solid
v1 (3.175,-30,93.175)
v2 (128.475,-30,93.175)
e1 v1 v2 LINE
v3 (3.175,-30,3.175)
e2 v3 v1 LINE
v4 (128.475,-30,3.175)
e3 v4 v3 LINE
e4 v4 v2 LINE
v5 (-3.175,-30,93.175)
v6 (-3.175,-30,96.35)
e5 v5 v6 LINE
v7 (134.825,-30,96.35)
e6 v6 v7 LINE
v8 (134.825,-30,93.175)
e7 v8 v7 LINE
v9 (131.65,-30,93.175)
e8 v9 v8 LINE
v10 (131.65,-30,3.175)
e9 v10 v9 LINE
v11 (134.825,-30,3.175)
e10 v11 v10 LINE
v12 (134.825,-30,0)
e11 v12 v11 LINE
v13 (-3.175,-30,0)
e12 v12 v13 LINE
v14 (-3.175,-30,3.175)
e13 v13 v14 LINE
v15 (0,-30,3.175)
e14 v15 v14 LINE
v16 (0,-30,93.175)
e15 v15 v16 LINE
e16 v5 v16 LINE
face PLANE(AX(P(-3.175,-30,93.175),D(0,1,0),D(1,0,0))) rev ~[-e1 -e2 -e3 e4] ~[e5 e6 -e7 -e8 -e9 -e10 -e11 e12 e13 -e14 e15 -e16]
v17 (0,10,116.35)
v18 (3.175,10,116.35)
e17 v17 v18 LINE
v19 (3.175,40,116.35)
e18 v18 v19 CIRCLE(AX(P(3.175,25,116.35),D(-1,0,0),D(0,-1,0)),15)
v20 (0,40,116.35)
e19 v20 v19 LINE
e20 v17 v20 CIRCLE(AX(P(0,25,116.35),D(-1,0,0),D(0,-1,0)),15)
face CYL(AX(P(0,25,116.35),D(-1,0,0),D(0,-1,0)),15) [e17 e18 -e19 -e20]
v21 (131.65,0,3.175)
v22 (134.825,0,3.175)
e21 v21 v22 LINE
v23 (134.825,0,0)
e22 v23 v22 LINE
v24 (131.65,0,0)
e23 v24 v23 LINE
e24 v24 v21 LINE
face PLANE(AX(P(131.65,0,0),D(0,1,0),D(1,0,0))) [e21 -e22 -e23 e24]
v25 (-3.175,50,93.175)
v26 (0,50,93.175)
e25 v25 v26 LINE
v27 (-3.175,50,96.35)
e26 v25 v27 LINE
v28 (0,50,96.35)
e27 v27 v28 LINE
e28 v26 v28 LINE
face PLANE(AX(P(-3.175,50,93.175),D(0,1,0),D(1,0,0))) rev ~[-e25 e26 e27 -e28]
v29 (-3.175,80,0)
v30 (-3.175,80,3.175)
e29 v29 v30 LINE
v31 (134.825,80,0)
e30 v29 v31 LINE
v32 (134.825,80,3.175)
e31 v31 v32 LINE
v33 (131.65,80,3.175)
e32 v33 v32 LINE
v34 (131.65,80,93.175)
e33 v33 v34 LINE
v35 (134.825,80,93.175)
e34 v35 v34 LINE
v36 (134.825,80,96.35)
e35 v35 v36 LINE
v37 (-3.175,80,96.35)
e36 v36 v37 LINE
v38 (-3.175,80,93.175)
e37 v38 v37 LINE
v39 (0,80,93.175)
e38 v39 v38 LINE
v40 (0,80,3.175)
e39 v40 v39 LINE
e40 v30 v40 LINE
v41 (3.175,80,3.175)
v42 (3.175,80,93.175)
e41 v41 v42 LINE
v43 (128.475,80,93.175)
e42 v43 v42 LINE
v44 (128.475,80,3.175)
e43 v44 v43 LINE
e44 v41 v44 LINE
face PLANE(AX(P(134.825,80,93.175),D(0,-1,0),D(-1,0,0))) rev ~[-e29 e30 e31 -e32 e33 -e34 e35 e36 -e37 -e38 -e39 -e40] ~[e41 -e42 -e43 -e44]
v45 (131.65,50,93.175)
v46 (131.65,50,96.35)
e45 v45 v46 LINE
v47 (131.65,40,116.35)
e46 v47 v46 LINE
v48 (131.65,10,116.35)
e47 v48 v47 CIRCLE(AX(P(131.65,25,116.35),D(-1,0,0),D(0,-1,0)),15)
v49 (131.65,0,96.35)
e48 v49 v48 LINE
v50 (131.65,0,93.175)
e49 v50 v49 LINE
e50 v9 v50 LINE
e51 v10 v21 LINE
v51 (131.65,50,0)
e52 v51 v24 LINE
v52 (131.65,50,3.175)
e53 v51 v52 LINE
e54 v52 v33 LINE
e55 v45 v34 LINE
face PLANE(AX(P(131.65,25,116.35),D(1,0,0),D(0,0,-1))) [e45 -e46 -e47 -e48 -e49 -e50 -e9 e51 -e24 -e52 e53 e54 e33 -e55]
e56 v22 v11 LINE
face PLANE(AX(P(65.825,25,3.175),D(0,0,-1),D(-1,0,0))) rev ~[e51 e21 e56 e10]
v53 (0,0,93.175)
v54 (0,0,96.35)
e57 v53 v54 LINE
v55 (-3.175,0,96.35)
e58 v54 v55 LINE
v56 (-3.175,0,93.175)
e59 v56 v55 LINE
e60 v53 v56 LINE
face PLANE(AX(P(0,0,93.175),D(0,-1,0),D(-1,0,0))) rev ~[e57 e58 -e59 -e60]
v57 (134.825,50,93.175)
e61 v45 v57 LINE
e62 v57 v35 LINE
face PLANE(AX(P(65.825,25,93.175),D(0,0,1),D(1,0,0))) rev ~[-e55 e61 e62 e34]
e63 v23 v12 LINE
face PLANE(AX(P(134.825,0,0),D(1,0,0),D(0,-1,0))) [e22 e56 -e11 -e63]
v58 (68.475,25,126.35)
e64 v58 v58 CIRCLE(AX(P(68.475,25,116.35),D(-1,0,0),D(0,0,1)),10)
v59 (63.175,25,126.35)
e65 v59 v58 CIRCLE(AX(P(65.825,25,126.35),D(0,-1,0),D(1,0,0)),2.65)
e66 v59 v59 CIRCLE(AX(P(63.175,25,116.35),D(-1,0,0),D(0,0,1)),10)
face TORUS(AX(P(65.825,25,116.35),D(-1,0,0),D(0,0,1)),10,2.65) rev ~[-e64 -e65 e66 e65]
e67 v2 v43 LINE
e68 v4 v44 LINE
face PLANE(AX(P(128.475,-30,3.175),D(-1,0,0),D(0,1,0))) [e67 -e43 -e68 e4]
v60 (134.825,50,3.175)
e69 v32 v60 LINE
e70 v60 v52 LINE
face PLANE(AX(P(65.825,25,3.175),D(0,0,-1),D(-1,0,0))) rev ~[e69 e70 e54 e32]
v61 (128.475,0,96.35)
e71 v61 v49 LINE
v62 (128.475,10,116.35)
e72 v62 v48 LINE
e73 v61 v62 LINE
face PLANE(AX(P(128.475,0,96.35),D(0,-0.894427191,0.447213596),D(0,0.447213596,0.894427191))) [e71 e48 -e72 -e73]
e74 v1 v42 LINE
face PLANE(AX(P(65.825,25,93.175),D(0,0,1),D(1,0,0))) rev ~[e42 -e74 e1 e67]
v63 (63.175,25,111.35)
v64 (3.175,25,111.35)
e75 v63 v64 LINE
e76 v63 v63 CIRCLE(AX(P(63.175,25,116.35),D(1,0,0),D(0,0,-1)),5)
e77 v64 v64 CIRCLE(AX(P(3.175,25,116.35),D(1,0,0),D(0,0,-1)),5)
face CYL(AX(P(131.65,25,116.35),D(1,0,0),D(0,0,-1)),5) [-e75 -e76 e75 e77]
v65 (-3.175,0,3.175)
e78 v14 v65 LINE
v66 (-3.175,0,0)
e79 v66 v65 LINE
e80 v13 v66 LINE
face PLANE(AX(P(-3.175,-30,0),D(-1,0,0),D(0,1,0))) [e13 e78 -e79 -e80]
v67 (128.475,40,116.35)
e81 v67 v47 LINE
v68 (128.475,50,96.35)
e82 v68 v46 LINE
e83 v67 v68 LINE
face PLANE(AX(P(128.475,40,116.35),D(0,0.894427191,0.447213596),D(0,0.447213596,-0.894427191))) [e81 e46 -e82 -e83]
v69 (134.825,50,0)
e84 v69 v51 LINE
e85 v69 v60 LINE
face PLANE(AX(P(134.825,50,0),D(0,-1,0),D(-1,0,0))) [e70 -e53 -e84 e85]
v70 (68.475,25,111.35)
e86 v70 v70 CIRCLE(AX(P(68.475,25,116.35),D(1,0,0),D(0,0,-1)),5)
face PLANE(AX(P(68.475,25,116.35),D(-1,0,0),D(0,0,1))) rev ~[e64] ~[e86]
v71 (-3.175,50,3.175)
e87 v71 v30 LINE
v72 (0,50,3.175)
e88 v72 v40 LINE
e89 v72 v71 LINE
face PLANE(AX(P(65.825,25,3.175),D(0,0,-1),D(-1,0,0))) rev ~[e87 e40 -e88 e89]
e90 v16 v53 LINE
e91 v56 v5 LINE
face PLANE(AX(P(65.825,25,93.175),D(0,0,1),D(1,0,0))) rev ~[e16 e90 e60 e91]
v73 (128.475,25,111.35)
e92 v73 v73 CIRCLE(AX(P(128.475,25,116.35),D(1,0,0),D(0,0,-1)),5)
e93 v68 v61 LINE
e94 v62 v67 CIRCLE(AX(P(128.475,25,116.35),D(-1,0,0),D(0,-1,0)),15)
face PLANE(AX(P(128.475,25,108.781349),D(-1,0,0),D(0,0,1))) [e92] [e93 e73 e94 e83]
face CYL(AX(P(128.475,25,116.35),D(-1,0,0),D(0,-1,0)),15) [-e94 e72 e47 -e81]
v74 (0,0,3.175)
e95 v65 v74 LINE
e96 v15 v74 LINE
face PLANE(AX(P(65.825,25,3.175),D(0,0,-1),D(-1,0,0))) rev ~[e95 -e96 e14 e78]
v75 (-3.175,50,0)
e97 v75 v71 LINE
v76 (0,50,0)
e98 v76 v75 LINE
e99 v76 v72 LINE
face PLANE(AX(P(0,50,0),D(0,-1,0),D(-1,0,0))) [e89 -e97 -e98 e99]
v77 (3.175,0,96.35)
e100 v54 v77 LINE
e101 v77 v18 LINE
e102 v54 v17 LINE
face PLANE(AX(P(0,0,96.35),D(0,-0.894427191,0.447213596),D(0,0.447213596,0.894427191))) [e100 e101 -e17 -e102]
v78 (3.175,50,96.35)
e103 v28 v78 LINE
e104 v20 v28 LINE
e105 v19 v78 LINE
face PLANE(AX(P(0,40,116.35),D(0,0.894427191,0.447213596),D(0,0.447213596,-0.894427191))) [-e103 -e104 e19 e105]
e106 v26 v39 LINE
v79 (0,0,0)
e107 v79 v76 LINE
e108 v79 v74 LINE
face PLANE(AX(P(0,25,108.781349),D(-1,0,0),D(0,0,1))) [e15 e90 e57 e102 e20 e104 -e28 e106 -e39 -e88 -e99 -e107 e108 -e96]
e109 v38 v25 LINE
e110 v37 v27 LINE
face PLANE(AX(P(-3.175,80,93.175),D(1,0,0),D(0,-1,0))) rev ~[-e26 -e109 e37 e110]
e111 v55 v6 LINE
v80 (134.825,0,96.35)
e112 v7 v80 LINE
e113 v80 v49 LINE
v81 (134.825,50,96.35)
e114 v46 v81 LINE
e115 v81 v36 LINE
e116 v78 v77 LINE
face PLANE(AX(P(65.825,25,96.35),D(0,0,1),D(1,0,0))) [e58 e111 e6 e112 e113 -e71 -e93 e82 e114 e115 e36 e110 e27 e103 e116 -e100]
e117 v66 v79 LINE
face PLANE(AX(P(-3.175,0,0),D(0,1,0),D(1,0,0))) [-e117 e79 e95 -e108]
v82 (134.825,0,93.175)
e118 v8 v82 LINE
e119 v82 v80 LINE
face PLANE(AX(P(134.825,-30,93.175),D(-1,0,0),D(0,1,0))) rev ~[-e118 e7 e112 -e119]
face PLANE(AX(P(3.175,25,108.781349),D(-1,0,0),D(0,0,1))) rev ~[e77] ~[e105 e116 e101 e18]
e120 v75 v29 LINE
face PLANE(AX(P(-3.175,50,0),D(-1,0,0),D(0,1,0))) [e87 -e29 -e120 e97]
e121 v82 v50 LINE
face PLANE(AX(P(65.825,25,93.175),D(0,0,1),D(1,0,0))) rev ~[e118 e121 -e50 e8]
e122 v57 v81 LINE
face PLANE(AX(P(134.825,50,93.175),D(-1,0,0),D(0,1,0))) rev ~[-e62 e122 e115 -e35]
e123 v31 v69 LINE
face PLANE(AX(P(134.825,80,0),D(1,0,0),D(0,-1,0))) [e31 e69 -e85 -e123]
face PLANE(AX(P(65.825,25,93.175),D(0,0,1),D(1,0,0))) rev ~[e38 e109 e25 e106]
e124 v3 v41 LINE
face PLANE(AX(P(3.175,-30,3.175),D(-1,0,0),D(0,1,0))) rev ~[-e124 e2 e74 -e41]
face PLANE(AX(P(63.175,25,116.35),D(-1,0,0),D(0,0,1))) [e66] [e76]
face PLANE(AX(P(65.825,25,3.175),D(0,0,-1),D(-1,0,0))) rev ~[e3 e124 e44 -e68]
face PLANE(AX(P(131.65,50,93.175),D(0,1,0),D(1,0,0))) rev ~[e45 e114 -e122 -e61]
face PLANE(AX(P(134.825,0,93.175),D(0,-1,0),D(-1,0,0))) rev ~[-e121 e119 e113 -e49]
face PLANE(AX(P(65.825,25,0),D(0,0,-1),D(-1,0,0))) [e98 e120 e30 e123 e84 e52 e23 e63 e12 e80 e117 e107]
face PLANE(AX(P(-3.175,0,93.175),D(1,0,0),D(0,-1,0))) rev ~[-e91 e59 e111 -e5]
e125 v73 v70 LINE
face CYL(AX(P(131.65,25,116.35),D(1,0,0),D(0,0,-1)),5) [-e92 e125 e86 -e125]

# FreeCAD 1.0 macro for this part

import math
import FreeCAD as App
import Part
import Sketcher
from FreeCAD import Vector
Q = App.Units.Quantity


def add_polygon(sketch, points):
    """Adds a closed chain of lines whose ends are joined by coincident constraints."""
    first, n = sketch.GeometryCount, len(points)
    for a, b in zip(points, points[1:] + points[:1]):
        sketch.addGeometry(Part.LineSegment(App.Vector(*a, 0), App.Vector(*b, 0)), False)
    for i in range(n):
        sketch.addConstraint(Sketcher.Constraint("Coincident", first + i, 2, first + (i + 1) % n, 1))

doc = App.newDocument("Part")
body = doc.addObject("PartDesign::Body", "Body")

# Sketch on XY plane
sketch1 = body.newObject("Sketcher::SketchObject", "Sketch")
sketch1.AttachmentSupport = (doc.getObject("XY_Plane"), [""])
sketch1.MapMode = "FlatFace"
add_polygon(sketch1, [(-3.2, 50), (0, 50), (0, 0), (-3.2, 0), (-3.2, -30), (134.8, -30), (134.8, 0), (131.7, 0), (131.7, 50), (134.8, 50), (134.8, 80), (-3.2, 80)])  # lines 0-11
sketch1.addConstraint(Sketcher.Constraint("Horizontal", 0))
sketch1.addConstraint(Sketcher.Constraint("Vertical", 1))
sketch1.addConstraint(Sketcher.Constraint("Horizontal", 2))
sketch1.addConstraint(Sketcher.Constraint("Vertical", 3))
sketch1.addConstraint(Sketcher.Constraint("Horizontal", 4))
sketch1.addConstraint(Sketcher.Constraint("Vertical", 5))
sketch1.addConstraint(Sketcher.Constraint("Horizontal", 6))
sketch1.addConstraint(Sketcher.Constraint("Vertical", 7))
sketch1.addConstraint(Sketcher.Constraint("Horizontal", 8))
sketch1.addConstraint(Sketcher.Constraint("Vertical", 9))
sketch1.addConstraint(Sketcher.Constraint("Horizontal", 10))
sketch1.addConstraint(Sketcher.Constraint("Vertical", 11))
sketch1.addConstraint(Sketcher.Constraint("Coincident", 1, 2, -1, 1))
sketch1.addConstraint(Sketcher.Constraint("PointOnObject", 5, 2, -1))
sketch1.addConstraint(Sketcher.Constraint("Horizontal", 0, 2, 7, 2))
sketch1.addConstraint(Sketcher.Constraint("Vertical", 5, 2, 8, 2))
sketch1.addConstraint(Sketcher.Constraint("Vertical", 3, 2, 10, 2))
sketch1.addConstraint(Sketcher.Constraint("Equal", 2, 6))
sketch1.addConstraint(Sketcher.Constraint("Equal", 5, 9))
sketch1.addConstraint(Sketcher.Constraint("DistanceX", 4, 1, 4, 2, Q("138 mm")))
sketch1.addConstraint(Sketcher.Constraint("DistanceY", 1, 2, 1, 1, Q("50 mm")))
sketch1.addConstraint(Sketcher.Constraint("DistanceY", 3, 2, 3, 1, Q("30 mm")))
sketch1.addConstraint(Sketcher.Constraint("DistanceX", 0, 1, 0, 2, Q("3.175 mm")))
pad1 = body.newObject("PartDesign::Pad", "Pad")
pad1.Profile = sketch1
pad1.Length = 3.175

# Sketch on XY plane
sketch2 = body.newObject("Sketcher::SketchObject", "Sketch001")
sketch2.AttachmentSupport = (doc.getObject("XY_Plane"), [""])
sketch2.MapMode = "FlatFace"
sketch2.AttachmentOffset = App.Placement(Vector(0, 0, 3.175), App.Rotation())
add_polygon(sketch2, [(0, 80), (0, -30), (3.2, -30), (3.2, 80)])  # lines 0-3
add_polygon(sketch2, [(128.5, 80), (128.5, -30), (131.7, -30), (131.7, 80)])  # lines 4-7
sketch2.addConstraint(Sketcher.Constraint("Vertical", 0))
sketch2.addConstraint(Sketcher.Constraint("Horizontal", 1))
sketch2.addConstraint(Sketcher.Constraint("Vertical", 2))
sketch2.addConstraint(Sketcher.Constraint("Horizontal", 3))
sketch2.addConstraint(Sketcher.Constraint("Vertical", 4))
sketch2.addConstraint(Sketcher.Constraint("Horizontal", 5))
sketch2.addConstraint(Sketcher.Constraint("Vertical", 6))
sketch2.addConstraint(Sketcher.Constraint("Horizontal", 7))
sketch2.addConstraint(Sketcher.Constraint("PointOnObject", 0, 2, -2))
sketch2.addConstraint(Sketcher.Constraint("Horizontal", 1, 2, 4, 2))
sketch2.addConstraint(Sketcher.Constraint("Horizontal", 3, 2, 6, 2))
sketch2.addConstraint(Sketcher.Constraint("Equal", 3, 5))
sketch2.addConstraint(Sketcher.Constraint("DistanceY", 0, 2, 0, 1, Q("110 mm")))
sketch2.addConstraint(Sketcher.Constraint("DistanceY", 0, 2, -1, 1, Q("30 mm")))
sketch2.addConstraint(Sketcher.Constraint("DistanceX", 1, 2, 4, 2, Q("125.3 mm")))
sketch2.addConstraint(Sketcher.Constraint("DistanceX", 1, 1, 1, 2, Q("3.175 mm")))
pad2 = body.newObject("PartDesign::Pad", "Pad001")
pad2.Profile = sketch2
pad2.Length = 90

# Sketch on XY plane
sketch3 = body.newObject("Sketcher::SketchObject", "Sketch002")
sketch3.AttachmentSupport = (doc.getObject("XY_Plane"), [""])
sketch3.MapMode = "FlatFace"
sketch3.AttachmentOffset = App.Placement(Vector(0, 0, 93.175), App.Rotation())
add_polygon(sketch3, [(131.7, 50), (134.8, 50), (134.8, 80), (-3.2, 80), (-3.2, 50), (0, 50), (0, 0), (-3.2, 0), (-3.2, -30), (134.8, -30), (134.8, 0), (131.7, 0)])  # lines 0-11
sketch3.addConstraint(Sketcher.Constraint("Horizontal", 0))
sketch3.addConstraint(Sketcher.Constraint("Vertical", 1))
sketch3.addConstraint(Sketcher.Constraint("Horizontal", 2))
sketch3.addConstraint(Sketcher.Constraint("Vertical", 3))
sketch3.addConstraint(Sketcher.Constraint("Horizontal", 4))
sketch3.addConstraint(Sketcher.Constraint("Vertical", 5))
sketch3.addConstraint(Sketcher.Constraint("Horizontal", 6))
sketch3.addConstraint(Sketcher.Constraint("Vertical", 7))
sketch3.addConstraint(Sketcher.Constraint("Horizontal", 8))
sketch3.addConstraint(Sketcher.Constraint("Vertical", 9))
sketch3.addConstraint(Sketcher.Constraint("Horizontal", 10))
sketch3.addConstraint(Sketcher.Constraint("Vertical", 11))
sketch3.addConstraint(Sketcher.Constraint("Coincident", 5, 2, -1, 1))
sketch3.addConstraint(Sketcher.Constraint("PointOnObject", 9, 2, -1))
sketch3.addConstraint(Sketcher.Constraint("Horizontal", 0, 2, 3, 2))
sketch3.addConstraint(Sketcher.Constraint("Vertical", 3, 2, 6, 2))
sketch3.addConstraint(Sketcher.Constraint("Vertical", 1, 2, 8, 2))
sketch3.addConstraint(Sketcher.Constraint("Equal", 0, 4))
sketch3.addConstraint(Sketcher.Constraint("Equal", 3, 7))
sketch3.addConstraint(Sketcher.Constraint("DistanceX", 2, 2, 2, 1, Q("138 mm")))
sketch3.addConstraint(Sketcher.Constraint("DistanceY", 1, 1, 1, 2, Q("30 mm")))
sketch3.addConstraint(Sketcher.Constraint("DistanceY", 5, 2, 5, 1, Q("50 mm")))
sketch3.addConstraint(Sketcher.Constraint("DistanceX", 0, 1, 0, 2, Q("3.175 mm")))
pad3 = body.newObject("PartDesign::Pad", "Pad002")
pad3.Profile = sketch3
pad3.Length = 3.175

# Sketch on YZ plane
sketch4 = body.newObject("Sketcher::SketchObject", "Sketch003")
sketch4.AttachmentSupport = (doc.getObject("YZ_Plane"), [""])
sketch4.MapMode = "FlatFace"
sketch4.addGeometry(Part.LineSegment(Vector(50, 96, 0), Vector(0, 96, 0)), False)
sketch4.addGeometry(Part.LineSegment(Vector(0, 96, 0), Vector(10, 116, 0)), False)
sketch4.addGeometry(Part.ArcOfCircle(Part.Circle(Vector(25, 116, 0), Vector(0, 0, 1), 15), math.radians(0), math.radians(180)), False)
sketch4.addGeometry(Part.LineSegment(Vector(40, 116, 0), Vector(50, 96, 0)), False)
sketch4.addConstraint(Sketcher.Constraint("Coincident", 0, 2, 1, 1))
sketch4.addConstraint(Sketcher.Constraint("Coincident", 1, 2, 2, 2))
sketch4.addConstraint(Sketcher.Constraint("Coincident", 2, 1, 3, 1))
sketch4.addConstraint(Sketcher.Constraint("Coincident", 3, 2, 0, 1))
sketch4.addConstraint(Sketcher.Constraint("Horizontal", 0))
sketch4.addConstraint(Sketcher.Constraint("PointOnObject", 0, 2, -2))
sketch4.addConstraint(Sketcher.Constraint("Horizontal", 2, 3, 1, 2))
sketch4.addConstraint(Sketcher.Constraint("Horizontal", 1, 2, 2, 1))
sketch4.addConstraint(Sketcher.Constraint("Equal", 1, 3))
sketch4.addConstraint(Sketcher.Constraint("Radius", 2, Q("15 mm")))
sketch4.addConstraint(Sketcher.Constraint("DistanceX", 0, 2, 0, 1, Q("50 mm")))
sketch4.addConstraint(Sketcher.Constraint("DistanceY", 0, 2, 2, 3, Q("20 mm")))
sketch4.addConstraint(Sketcher.Constraint("DistanceY", -1, 1, 2, 3, Q("116.35 mm")))
pad4 = body.newObject("PartDesign::Pad", "Pad003")
pad4.Profile = sketch4
pad4.Length = 3.175

# Sketch on YZ plane
sketch5 = body.newObject("Sketcher::SketchObject", "Sketch004")
sketch5.AttachmentSupport = (doc.getObject("YZ_Plane"), [""])
sketch5.MapMode = "FlatFace"
sketch5.AttachmentOffset = App.Placement(Vector(0, 0, 128.475), App.Rotation())
sketch5.addGeometry(Part.LineSegment(Vector(10, 116, 0), Vector(0, 96, 0)), False)
sketch5.addGeometry(Part.LineSegment(Vector(0, 96, 0), Vector(50, 96, 0)), False)
sketch5.addGeometry(Part.LineSegment(Vector(50, 96, 0), Vector(40, 116, 0)), False)
sketch5.addGeometry(Part.ArcOfCircle(Part.Circle(Vector(25, 116, 0), Vector(0, 0, 1), 15), math.radians(0), math.radians(180)), False)
sketch5.addConstraint(Sketcher.Constraint("Coincident", 0, 2, 1, 1))
sketch5.addConstraint(Sketcher.Constraint("Coincident", 1, 2, 2, 1))
sketch5.addConstraint(Sketcher.Constraint("Coincident", 2, 2, 3, 1))
sketch5.addConstraint(Sketcher.Constraint("Coincident", 3, 2, 0, 1))
sketch5.addConstraint(Sketcher.Constraint("Horizontal", 1))
sketch5.addConstraint(Sketcher.Constraint("PointOnObject", 0, 2, -2))
sketch5.addConstraint(Sketcher.Constraint("Horizontal", 3, 3, 2, 2))
sketch5.addConstraint(Sketcher.Constraint("Horizontal", 2, 2, 3, 2))
sketch5.addConstraint(Sketcher.Constraint("Equal", 0, 2))
sketch5.addConstraint(Sketcher.Constraint("Radius", 3, Q("15 mm")))
sketch5.addConstraint(Sketcher.Constraint("DistanceX", 1, 1, 1, 2, Q("50 mm")))
sketch5.addConstraint(Sketcher.Constraint("DistanceY", 0, 2, 3, 3, Q("20 mm")))
sketch5.addConstraint(Sketcher.Constraint("DistanceY", -1, 1, 3, 3, Q("116.35 mm")))
pad5 = body.newObject("PartDesign::Pad", "Pad004")
pad5.Profile = sketch5
pad5.Length = 3.175

# Sketch on YZ plane
sketch6 = body.newObject("Sketcher::SketchObject", "Sketch005")
sketch6.AttachmentSupport = (doc.getObject("YZ_Plane"), [""])
sketch6.MapMode = "FlatFace"
sketch6.AttachmentOffset = App.Placement(Vector(0, 0, 131.65), App.Rotation())
sketch6.addGeometry(Part.Circle(Vector(25, 116, 0), Vector(0, 0, 1), 5), False)
sketch6.addConstraint(Sketcher.Constraint("Diameter", 0, Q("10 mm")))
sketch6.addConstraint(Sketcher.Constraint("DistanceX", -1, 1, 0, 3, Q("25 mm")))
sketch6.addConstraint(Sketcher.Constraint("DistanceY", -1, 1, 0, 3, Q("116.35 mm")))
pad6 = body.newObject("PartDesign::Pad", "Pad005")
pad6.Profile = sketch6
pad6.Length = 128.475
pad6.Reversed = True

# Sketch on YZ plane
sketch7 = body.newObject("Sketcher::SketchObject", "Sketch006")
sketch7.AttachmentSupport = (doc.getObject("YZ_Plane"), [""])
sketch7.MapMode = "FlatFace"
sketch7.AttachmentOffset = App.Placement(Vector(0, 0, 68.475), App.Rotation())
sketch7.addGeometry(Part.Circle(Vector(25, 116, 0), Vector(0, 0, 1), 10), False)
sketch7.addConstraint(Sketcher.Constraint("Diameter", 0, Q("20 mm")))
sketch7.addConstraint(Sketcher.Constraint("DistanceX", -1, 1, 0, 3, Q("25 mm")))
sketch7.addConstraint(Sketcher.Constraint("DistanceY", -1, 1, 0, 3, Q("116.35 mm")))
pad7 = body.newObject("PartDesign::Pad", "Pad006")
pad7.Profile = sketch7
pad7.Length = 5.3
pad7.Reversed = True

# Sketch on XZ plane
sketch8 = body.newObject("Sketcher::SketchObject", "Sketch007")
sketch8.AttachmentSupport = (doc.getObject("XZ_Plane"), [""])
sketch8.MapMode = "FlatFace"
sketch8.AttachmentOffset = App.Placement(Vector(0, 0, -25), App.Rotation())
sketch8.addGeometry(Part.Circle(Vector(65.8, 106.3, 0), Vector(0, 0, 1), 2.6), False)
sketch8.addGeometry(Part.LineSegment(Vector(65.8, 116.3, 0), Vector(55.8, 116.3, 0)), True)  # axis
sketch8.addConstraint(Sketcher.Constraint("Horizontal", 1))
sketch8.addConstraint(Sketcher.Constraint("Vertical", 0, 3, 1, 1))
sketch8.addConstraint(Sketcher.Constraint("Diameter", 0, Q("5.3 mm")))
sketch8.addConstraint(Sketcher.Constraint("DistanceX", 1, 2, 1, 1, Q("10 mm")))
sketch8.addConstraint(Sketcher.Constraint("DistanceY", 0, 3, 1, 1, Q("10 mm")))
sketch8.addConstraint(Sketcher.Constraint("DistanceY", -1, 1, 0, 3, Q("106.35 mm")))
sketch8.addConstraint(Sketcher.Constraint("DistanceX", -1, 1, 0, 3, Q("65.825 mm")))
groove = body.newObject("PartDesign::Groove", "Groove")
groove.Profile = sketch8
groove.ReferenceAxis = (sketch8, ["Axis0"])
groove.Angle = 360

doc.recompute()
